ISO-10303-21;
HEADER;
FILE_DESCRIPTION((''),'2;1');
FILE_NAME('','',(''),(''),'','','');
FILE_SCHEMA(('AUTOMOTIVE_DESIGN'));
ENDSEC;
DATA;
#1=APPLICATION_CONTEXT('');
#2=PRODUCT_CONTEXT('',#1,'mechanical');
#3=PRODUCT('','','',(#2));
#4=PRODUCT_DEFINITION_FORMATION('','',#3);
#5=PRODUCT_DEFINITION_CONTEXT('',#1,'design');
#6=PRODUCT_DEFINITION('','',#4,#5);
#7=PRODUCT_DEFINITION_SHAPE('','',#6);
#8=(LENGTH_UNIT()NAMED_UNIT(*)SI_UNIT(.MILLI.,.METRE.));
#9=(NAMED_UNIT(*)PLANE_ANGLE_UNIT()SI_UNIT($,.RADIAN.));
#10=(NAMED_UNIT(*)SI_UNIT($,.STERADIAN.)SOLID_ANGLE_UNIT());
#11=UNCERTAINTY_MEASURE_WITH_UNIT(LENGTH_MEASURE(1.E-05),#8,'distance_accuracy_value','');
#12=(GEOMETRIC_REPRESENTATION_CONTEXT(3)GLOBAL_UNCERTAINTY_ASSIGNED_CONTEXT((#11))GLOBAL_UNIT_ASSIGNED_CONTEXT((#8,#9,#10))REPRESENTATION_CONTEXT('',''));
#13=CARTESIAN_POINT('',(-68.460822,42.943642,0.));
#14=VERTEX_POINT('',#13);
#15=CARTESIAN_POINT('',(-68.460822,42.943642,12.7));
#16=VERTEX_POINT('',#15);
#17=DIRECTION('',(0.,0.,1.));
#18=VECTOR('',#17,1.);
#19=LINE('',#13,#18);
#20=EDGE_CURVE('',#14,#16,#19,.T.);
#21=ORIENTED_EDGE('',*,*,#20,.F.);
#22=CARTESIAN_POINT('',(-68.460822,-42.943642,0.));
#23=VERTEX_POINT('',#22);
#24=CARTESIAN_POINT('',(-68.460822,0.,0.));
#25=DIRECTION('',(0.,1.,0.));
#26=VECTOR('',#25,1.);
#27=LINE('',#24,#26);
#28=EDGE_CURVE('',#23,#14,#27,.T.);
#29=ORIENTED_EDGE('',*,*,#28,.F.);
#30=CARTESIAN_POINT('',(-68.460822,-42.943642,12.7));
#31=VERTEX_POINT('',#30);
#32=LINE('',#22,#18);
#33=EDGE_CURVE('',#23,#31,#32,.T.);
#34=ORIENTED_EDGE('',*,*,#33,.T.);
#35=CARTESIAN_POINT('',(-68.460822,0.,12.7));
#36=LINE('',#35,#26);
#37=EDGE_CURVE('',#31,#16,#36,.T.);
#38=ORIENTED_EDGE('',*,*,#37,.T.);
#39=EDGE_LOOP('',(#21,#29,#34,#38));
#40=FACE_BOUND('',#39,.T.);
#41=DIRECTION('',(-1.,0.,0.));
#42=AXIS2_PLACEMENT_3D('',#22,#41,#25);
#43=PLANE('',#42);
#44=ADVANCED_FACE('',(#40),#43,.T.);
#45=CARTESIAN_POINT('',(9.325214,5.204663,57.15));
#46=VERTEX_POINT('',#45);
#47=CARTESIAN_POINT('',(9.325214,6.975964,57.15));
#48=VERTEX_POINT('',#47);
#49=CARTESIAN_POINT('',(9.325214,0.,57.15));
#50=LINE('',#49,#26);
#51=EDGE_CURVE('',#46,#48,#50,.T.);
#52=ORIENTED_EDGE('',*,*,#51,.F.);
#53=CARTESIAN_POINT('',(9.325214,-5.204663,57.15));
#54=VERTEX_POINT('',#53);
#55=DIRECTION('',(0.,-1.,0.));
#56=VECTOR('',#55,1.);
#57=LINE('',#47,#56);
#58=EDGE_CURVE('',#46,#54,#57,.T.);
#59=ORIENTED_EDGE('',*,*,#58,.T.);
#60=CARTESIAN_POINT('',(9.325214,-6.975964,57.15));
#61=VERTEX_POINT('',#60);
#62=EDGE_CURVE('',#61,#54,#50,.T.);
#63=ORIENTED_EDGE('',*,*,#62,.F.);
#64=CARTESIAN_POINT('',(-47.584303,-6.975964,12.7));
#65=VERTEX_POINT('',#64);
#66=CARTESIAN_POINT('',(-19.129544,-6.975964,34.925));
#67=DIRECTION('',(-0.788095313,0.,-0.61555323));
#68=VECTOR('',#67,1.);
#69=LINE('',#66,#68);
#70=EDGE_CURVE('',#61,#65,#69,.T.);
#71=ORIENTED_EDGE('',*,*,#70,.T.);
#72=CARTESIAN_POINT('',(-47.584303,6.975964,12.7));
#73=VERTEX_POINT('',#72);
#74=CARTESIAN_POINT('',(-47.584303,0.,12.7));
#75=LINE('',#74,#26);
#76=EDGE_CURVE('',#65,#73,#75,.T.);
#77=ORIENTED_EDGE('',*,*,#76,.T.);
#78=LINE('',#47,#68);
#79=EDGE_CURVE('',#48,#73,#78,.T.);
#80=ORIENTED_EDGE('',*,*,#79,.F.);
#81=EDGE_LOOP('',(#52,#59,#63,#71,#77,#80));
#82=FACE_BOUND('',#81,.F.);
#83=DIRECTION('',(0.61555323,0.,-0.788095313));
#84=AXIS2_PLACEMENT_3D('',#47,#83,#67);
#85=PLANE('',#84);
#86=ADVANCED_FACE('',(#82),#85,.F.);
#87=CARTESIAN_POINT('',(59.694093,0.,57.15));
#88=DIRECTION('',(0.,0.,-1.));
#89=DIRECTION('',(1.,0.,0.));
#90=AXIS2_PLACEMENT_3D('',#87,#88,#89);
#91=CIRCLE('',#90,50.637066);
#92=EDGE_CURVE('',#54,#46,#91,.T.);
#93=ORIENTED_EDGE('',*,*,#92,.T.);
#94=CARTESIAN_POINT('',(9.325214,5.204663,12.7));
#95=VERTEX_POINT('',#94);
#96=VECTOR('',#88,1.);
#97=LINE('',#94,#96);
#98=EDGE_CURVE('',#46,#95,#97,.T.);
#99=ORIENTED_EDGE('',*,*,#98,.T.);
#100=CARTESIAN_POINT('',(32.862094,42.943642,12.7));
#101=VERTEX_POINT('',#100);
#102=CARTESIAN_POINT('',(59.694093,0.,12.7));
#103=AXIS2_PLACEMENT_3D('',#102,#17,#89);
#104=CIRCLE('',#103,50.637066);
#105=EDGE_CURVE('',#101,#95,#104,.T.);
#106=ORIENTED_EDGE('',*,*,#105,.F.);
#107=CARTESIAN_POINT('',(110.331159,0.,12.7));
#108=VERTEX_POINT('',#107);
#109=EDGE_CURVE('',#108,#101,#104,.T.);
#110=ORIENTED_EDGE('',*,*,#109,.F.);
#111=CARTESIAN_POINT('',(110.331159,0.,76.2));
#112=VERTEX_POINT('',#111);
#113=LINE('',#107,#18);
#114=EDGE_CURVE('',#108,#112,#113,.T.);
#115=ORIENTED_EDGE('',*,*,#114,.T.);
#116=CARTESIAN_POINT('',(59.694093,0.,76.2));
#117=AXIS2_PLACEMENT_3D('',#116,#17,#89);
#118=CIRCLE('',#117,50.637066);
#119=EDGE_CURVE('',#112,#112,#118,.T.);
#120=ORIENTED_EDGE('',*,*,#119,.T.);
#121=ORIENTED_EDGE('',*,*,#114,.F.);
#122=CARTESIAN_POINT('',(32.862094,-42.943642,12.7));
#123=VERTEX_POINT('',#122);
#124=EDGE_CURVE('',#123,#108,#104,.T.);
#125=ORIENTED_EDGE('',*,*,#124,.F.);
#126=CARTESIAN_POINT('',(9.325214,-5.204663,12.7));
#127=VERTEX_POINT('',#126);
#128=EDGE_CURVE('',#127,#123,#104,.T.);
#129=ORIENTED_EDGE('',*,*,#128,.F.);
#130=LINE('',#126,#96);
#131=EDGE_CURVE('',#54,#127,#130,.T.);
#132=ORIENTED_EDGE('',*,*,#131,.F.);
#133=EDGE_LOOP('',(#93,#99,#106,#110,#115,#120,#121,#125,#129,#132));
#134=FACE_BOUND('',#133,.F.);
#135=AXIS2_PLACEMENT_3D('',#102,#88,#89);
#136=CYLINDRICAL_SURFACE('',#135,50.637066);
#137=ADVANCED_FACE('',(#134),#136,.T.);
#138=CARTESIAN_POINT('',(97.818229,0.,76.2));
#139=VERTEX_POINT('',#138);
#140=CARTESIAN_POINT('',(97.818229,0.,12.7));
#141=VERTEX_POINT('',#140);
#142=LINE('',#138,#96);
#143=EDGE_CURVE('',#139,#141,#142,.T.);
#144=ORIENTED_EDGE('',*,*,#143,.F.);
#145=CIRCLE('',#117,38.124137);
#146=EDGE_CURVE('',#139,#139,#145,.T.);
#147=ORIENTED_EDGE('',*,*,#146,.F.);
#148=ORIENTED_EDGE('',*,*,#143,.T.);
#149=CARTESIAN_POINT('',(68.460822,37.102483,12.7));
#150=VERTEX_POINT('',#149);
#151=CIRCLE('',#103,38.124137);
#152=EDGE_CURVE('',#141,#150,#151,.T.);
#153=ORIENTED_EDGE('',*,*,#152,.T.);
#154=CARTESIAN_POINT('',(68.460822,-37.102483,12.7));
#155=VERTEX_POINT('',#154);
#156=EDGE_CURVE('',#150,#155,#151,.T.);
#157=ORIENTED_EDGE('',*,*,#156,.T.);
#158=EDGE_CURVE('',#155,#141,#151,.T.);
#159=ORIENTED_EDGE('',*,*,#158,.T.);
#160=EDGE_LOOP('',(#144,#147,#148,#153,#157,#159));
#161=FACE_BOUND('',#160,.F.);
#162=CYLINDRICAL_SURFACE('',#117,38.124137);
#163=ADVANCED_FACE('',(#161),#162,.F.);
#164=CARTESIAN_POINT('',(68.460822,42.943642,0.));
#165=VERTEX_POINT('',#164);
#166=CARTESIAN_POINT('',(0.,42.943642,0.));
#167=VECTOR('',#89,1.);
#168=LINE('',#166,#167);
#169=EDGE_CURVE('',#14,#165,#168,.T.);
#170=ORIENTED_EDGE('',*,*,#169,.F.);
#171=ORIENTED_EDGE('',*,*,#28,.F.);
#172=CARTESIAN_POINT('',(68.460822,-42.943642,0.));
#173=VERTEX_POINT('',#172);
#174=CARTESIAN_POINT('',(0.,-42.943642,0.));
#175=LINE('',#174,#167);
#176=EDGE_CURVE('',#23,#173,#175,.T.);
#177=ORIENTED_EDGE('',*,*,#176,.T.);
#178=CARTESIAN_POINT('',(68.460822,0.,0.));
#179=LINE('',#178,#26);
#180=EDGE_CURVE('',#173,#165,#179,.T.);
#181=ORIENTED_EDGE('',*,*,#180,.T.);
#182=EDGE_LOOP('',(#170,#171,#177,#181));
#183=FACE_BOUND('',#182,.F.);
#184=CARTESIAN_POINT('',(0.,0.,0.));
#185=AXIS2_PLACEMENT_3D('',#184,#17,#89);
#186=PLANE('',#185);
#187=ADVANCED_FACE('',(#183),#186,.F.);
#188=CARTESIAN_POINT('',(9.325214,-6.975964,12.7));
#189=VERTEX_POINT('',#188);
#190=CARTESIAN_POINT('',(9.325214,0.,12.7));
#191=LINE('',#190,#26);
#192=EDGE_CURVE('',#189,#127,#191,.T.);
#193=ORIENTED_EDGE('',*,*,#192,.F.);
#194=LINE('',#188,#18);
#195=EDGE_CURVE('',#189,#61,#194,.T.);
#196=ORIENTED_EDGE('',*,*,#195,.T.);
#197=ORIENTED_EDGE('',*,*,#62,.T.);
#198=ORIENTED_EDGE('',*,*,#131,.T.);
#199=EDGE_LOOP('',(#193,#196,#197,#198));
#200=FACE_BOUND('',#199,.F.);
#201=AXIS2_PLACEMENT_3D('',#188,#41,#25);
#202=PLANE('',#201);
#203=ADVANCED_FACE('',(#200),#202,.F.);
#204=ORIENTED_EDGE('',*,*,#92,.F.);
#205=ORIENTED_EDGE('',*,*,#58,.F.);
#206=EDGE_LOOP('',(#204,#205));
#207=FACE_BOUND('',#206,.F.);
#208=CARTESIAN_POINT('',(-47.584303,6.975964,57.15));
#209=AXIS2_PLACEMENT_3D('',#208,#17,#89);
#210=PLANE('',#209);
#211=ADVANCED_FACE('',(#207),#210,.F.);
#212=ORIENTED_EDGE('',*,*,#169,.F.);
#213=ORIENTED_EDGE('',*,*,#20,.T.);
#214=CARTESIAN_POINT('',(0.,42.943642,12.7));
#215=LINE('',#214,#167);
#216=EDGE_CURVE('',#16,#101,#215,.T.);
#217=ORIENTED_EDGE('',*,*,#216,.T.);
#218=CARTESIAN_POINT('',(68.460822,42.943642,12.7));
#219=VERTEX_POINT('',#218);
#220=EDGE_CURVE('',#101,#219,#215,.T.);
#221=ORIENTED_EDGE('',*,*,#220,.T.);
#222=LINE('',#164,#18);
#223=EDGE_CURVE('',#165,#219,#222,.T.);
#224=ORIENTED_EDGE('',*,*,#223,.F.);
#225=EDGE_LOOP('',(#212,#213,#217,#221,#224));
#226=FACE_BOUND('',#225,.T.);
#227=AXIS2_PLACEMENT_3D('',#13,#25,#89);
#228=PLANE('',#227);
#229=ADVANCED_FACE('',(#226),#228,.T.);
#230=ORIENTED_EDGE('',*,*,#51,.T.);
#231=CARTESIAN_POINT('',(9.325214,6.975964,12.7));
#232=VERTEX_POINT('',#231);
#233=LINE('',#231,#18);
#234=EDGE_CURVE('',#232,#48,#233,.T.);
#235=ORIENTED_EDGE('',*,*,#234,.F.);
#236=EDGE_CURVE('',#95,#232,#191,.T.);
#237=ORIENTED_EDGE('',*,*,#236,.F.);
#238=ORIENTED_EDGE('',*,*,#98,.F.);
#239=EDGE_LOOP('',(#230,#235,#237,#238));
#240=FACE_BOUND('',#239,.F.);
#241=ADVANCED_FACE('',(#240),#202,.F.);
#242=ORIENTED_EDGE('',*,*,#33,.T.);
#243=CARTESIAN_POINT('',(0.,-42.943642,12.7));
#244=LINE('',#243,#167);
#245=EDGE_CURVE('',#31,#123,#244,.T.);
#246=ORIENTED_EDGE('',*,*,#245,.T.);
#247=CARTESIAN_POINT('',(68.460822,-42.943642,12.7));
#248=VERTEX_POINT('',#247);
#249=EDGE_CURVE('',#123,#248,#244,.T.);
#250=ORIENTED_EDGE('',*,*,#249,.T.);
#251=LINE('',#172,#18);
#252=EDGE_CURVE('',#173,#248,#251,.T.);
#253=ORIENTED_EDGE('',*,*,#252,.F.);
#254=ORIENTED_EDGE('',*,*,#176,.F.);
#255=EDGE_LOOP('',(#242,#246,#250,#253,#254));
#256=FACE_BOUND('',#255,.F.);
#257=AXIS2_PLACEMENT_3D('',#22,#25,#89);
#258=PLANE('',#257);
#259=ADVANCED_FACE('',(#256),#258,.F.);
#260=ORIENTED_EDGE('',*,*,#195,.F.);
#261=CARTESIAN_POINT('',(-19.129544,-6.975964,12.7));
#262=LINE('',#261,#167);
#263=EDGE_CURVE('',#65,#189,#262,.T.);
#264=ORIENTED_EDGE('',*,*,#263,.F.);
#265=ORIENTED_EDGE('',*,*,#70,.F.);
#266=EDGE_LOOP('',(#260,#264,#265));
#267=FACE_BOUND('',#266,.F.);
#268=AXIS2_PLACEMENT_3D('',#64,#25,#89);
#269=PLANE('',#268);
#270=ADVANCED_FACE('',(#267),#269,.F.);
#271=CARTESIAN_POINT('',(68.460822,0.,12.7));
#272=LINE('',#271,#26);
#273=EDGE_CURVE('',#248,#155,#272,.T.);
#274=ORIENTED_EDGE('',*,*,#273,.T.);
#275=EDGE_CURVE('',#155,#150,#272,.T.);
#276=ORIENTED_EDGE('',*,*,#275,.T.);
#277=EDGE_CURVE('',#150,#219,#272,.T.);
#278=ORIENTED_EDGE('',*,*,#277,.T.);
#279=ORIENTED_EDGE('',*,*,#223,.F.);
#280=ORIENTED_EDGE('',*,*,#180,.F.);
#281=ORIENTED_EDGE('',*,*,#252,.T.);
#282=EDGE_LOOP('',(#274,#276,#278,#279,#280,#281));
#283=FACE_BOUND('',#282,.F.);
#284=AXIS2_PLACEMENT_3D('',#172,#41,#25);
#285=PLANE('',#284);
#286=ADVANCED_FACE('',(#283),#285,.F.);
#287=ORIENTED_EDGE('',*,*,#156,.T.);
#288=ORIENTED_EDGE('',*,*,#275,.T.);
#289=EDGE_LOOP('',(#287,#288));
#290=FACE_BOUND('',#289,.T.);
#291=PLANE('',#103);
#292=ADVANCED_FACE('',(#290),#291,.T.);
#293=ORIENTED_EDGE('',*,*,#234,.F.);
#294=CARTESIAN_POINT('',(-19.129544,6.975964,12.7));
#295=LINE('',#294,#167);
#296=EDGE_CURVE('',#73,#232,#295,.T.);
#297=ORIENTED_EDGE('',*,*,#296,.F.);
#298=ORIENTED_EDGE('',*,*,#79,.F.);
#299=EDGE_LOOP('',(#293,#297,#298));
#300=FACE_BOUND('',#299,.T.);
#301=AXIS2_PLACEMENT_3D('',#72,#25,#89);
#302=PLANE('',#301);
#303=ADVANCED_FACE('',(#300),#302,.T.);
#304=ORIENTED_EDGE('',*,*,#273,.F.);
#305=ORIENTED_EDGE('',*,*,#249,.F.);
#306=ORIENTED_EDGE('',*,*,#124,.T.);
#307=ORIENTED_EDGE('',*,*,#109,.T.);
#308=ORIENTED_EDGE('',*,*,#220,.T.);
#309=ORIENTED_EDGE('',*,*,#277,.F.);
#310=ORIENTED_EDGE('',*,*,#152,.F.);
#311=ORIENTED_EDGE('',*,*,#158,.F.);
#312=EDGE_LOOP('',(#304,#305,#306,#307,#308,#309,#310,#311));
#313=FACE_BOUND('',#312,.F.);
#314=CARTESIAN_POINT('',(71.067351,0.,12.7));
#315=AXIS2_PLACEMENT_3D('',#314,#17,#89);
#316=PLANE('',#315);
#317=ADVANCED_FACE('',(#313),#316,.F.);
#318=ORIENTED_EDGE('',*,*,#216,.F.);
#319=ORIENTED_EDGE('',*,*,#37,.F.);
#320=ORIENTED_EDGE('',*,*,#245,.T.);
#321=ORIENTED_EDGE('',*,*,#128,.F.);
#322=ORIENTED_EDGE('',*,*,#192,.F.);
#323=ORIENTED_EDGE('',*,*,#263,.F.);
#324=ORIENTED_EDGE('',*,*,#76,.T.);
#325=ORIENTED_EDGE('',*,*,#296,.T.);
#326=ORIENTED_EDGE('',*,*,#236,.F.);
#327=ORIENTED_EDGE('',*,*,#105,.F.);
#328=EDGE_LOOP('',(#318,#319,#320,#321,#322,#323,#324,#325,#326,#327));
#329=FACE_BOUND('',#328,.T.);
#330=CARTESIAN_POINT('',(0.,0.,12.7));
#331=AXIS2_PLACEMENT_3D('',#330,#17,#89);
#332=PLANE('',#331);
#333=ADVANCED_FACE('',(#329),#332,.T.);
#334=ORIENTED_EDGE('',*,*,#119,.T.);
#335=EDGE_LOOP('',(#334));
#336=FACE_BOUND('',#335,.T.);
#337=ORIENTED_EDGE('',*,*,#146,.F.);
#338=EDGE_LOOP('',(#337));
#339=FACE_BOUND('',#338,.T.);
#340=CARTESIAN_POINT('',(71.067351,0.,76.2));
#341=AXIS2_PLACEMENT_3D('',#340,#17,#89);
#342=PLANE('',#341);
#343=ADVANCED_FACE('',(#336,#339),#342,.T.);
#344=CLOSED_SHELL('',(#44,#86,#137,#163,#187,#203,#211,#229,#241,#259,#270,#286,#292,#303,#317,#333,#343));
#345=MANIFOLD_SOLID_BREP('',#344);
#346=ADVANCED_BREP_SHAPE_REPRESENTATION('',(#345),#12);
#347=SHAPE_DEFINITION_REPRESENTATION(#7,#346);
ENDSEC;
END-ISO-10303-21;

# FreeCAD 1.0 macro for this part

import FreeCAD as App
import Part
import Sketcher
Q = App.Units.Quantity


def add_polygon(sketch, points):
    """Adds a closed chain of lines whose ends are joined by coincident constraints."""
    first, n = sketch.GeometryCount, len(points)
    for a, b in zip(points, points[1:] + points[:1]):
        sketch.addGeometry(Part.LineSegment(App.Vector(*a, 0), App.Vector(*b, 0)), False)
    for i in range(n):
        sketch.addConstraint(Sketcher.Constraint("Coincident", first + i, 2, first + (i + 1) % n, 1))

doc = App.newDocument("Part")
body = doc.addObject("PartDesign::Body", "Body")

# Sketch on XY plane
sketch1 = body.newObject("Sketcher::SketchObject", "Sketch")
sketch1.AttachmentSupport = (doc.getObject("XY_Plane"), [""])
sketch1.MapMode = "FlatFace"
add_polygon(sketch1, [(-68.460822, 42.943642), (-68.460822, -42.943642), (68.460822, -42.943642), (68.460822, 42.943642)])  # lines 0-3
sketch1.addConstraint([
    Sketcher.Constraint("Vertical", 0),
    Sketcher.Constraint("Horizontal", 1),
    Sketcher.Constraint("Vertical", 2),
    Sketcher.Constraint("Horizontal", 3),
    Sketcher.Constraint("Symmetric", 0, 2, 2, 2, -1, 1),
    Sketcher.Constraint("DistanceX", 1, 1, 1, 2, Q("136.921644 mm")),
    Sketcher.Constraint("DistanceY", 0, 2, 0, 1, Q("85.887283 mm")),
])
pad1 = body.newObject("PartDesign::Pad", "Pad")
pad1.Profile = sketch1
pad1.Length = Q("0.5 in")

# Sketch on XY plane
sketch2 = body.newObject("Sketcher::SketchObject", "Sketch001")
sketch2.AttachmentSupport = (doc.getObject("XY_Plane"), [""])
sketch2.MapMode = "FlatFace"
sketch2.AttachmentOffset = App.Placement(App.Vector(0, 0, 0.5 * 25.4), App.Rotation())
sketch2.addGeometry(Part.Circle(App.Vector(59.694093, 0, 0), App.Vector(0, 0, 1), 50.637066), False)
sketch2.addConstraint([
    Sketcher.Constraint("PointOnObject", 0, 3, -1),
    Sketcher.Constraint("Diameter", 0, Q("101.274133 mm")),
    Sketcher.Constraint("DistanceX", -1, 1, 0, 3, Q("59.694093 mm")),
])
pad2 = body.newObject("PartDesign::Pad", "Pad001")
pad2.Profile = sketch2
pad2.Length = Q("2.5 in")

# Sketch on XY plane
sketch3 = body.newObject("Sketcher::SketchObject", "Sketch002")
sketch3.AttachmentSupport = (doc.getObject("XY_Plane"), [""])
sketch3.MapMode = "FlatFace"
sketch3.AttachmentOffset = App.Placement(App.Vector(0, 0, 3 * 25.4), App.Rotation())
sketch3.addGeometry(Part.Circle(App.Vector(59.694093, 0, 0), App.Vector(0, 0, 1), 38.124137), False)
sketch3.addConstraint([
    Sketcher.Constraint("PointOnObject", 0, 3, -1),
    Sketcher.Constraint("Diameter", 0, Q("76.248273 mm")),
    Sketcher.Constraint("DistanceX", -1, 1, 0, 3, Q("59.694093 mm")),
])
pocket1 = body.newObject("PartDesign::Pocket", "Pocket")
pocket1.Profile = sketch3
pocket1.Length = Q("2.5 in")

# Sketch on XY plane
sketch4 = body.newObject("Sketcher::SketchObject", "Sketch003")
sketch4.AttachmentSupport = (doc.getObject("XY_Plane"), [""])
sketch4.MapMode = "FlatFace"
sketch4.AttachmentOffset = App.Placement(App.Vector(0, 0, 0.5 * 25.4), App.Rotation())
add_polygon(sketch4, [(-47.584303, 6.975964), (-47.584303, -6.975964), (9.325214, -6.975964), (9.325214, 6.975964)])  # lines 0-3
sketch4.addConstraint([
    Sketcher.Constraint("Vertical", 0),
    Sketcher.Constraint("Horizontal", 1),
    Sketcher.Constraint("Vertical", 2),
    Sketcher.Constraint("Horizontal", 3),
    Sketcher.Constraint("DistanceX", 1, 1, 1, 2, Q("56.909516 mm")),
    Sketcher.Constraint("DistanceY", 0, 2, 0, 1, Q("13.951927 mm")),
    Sketcher.Constraint("DistanceX", 0, 2, -1, 1, Q("47.584303 mm")),
    Sketcher.Constraint("DistanceY", 0, 2, -1, 1, Q("6.975964 mm")),
])
pad3 = body.newObject("PartDesign::Pad", "Pad002")
pad3.Profile = sketch4
pad3.Length = Q("1.75 in")

# Sketch on XZ plane
sketch5 = body.newObject("Sketcher::SketchObject", "Sketch004")
sketch5.AttachmentSupport = (doc.getObject("XZ_Plane"), [""])
sketch5.MapMode = "FlatFace"
sketch5.AttachmentOffset = App.Placement(App.Vector(0, 0, -6.975964), App.Rotation())
add_polygon(sketch5, [(-47.584303, 57.15), (9.325214, 57.15), (-47.584303, 12.7)])  # lines 0-2
sketch5.addConstraint([
    Sketcher.Constraint("Horizontal", 0),
    Sketcher.Constraint("Vertical", 2),
    Sketcher.Constraint("DistanceY", 2, 1, 2, 2, Q("1.75 in")),
    Sketcher.Constraint("DistanceY", -1, 1, 1, 2, Q("0.5 in")),
    Sketcher.Constraint("DistanceX", 0, 1, 0, 2, Q("56.909516 mm")),
    Sketcher.Constraint("DistanceX", -1, 1, 0, 2, Q("9.325214 mm")),
])
pocket2 = body.newObject("PartDesign::Pocket", "Pocket001")
pocket2.Profile = sketch5
pocket2.Length = Q("1 in")
pocket2.Reversed = True

doc.recompute()
